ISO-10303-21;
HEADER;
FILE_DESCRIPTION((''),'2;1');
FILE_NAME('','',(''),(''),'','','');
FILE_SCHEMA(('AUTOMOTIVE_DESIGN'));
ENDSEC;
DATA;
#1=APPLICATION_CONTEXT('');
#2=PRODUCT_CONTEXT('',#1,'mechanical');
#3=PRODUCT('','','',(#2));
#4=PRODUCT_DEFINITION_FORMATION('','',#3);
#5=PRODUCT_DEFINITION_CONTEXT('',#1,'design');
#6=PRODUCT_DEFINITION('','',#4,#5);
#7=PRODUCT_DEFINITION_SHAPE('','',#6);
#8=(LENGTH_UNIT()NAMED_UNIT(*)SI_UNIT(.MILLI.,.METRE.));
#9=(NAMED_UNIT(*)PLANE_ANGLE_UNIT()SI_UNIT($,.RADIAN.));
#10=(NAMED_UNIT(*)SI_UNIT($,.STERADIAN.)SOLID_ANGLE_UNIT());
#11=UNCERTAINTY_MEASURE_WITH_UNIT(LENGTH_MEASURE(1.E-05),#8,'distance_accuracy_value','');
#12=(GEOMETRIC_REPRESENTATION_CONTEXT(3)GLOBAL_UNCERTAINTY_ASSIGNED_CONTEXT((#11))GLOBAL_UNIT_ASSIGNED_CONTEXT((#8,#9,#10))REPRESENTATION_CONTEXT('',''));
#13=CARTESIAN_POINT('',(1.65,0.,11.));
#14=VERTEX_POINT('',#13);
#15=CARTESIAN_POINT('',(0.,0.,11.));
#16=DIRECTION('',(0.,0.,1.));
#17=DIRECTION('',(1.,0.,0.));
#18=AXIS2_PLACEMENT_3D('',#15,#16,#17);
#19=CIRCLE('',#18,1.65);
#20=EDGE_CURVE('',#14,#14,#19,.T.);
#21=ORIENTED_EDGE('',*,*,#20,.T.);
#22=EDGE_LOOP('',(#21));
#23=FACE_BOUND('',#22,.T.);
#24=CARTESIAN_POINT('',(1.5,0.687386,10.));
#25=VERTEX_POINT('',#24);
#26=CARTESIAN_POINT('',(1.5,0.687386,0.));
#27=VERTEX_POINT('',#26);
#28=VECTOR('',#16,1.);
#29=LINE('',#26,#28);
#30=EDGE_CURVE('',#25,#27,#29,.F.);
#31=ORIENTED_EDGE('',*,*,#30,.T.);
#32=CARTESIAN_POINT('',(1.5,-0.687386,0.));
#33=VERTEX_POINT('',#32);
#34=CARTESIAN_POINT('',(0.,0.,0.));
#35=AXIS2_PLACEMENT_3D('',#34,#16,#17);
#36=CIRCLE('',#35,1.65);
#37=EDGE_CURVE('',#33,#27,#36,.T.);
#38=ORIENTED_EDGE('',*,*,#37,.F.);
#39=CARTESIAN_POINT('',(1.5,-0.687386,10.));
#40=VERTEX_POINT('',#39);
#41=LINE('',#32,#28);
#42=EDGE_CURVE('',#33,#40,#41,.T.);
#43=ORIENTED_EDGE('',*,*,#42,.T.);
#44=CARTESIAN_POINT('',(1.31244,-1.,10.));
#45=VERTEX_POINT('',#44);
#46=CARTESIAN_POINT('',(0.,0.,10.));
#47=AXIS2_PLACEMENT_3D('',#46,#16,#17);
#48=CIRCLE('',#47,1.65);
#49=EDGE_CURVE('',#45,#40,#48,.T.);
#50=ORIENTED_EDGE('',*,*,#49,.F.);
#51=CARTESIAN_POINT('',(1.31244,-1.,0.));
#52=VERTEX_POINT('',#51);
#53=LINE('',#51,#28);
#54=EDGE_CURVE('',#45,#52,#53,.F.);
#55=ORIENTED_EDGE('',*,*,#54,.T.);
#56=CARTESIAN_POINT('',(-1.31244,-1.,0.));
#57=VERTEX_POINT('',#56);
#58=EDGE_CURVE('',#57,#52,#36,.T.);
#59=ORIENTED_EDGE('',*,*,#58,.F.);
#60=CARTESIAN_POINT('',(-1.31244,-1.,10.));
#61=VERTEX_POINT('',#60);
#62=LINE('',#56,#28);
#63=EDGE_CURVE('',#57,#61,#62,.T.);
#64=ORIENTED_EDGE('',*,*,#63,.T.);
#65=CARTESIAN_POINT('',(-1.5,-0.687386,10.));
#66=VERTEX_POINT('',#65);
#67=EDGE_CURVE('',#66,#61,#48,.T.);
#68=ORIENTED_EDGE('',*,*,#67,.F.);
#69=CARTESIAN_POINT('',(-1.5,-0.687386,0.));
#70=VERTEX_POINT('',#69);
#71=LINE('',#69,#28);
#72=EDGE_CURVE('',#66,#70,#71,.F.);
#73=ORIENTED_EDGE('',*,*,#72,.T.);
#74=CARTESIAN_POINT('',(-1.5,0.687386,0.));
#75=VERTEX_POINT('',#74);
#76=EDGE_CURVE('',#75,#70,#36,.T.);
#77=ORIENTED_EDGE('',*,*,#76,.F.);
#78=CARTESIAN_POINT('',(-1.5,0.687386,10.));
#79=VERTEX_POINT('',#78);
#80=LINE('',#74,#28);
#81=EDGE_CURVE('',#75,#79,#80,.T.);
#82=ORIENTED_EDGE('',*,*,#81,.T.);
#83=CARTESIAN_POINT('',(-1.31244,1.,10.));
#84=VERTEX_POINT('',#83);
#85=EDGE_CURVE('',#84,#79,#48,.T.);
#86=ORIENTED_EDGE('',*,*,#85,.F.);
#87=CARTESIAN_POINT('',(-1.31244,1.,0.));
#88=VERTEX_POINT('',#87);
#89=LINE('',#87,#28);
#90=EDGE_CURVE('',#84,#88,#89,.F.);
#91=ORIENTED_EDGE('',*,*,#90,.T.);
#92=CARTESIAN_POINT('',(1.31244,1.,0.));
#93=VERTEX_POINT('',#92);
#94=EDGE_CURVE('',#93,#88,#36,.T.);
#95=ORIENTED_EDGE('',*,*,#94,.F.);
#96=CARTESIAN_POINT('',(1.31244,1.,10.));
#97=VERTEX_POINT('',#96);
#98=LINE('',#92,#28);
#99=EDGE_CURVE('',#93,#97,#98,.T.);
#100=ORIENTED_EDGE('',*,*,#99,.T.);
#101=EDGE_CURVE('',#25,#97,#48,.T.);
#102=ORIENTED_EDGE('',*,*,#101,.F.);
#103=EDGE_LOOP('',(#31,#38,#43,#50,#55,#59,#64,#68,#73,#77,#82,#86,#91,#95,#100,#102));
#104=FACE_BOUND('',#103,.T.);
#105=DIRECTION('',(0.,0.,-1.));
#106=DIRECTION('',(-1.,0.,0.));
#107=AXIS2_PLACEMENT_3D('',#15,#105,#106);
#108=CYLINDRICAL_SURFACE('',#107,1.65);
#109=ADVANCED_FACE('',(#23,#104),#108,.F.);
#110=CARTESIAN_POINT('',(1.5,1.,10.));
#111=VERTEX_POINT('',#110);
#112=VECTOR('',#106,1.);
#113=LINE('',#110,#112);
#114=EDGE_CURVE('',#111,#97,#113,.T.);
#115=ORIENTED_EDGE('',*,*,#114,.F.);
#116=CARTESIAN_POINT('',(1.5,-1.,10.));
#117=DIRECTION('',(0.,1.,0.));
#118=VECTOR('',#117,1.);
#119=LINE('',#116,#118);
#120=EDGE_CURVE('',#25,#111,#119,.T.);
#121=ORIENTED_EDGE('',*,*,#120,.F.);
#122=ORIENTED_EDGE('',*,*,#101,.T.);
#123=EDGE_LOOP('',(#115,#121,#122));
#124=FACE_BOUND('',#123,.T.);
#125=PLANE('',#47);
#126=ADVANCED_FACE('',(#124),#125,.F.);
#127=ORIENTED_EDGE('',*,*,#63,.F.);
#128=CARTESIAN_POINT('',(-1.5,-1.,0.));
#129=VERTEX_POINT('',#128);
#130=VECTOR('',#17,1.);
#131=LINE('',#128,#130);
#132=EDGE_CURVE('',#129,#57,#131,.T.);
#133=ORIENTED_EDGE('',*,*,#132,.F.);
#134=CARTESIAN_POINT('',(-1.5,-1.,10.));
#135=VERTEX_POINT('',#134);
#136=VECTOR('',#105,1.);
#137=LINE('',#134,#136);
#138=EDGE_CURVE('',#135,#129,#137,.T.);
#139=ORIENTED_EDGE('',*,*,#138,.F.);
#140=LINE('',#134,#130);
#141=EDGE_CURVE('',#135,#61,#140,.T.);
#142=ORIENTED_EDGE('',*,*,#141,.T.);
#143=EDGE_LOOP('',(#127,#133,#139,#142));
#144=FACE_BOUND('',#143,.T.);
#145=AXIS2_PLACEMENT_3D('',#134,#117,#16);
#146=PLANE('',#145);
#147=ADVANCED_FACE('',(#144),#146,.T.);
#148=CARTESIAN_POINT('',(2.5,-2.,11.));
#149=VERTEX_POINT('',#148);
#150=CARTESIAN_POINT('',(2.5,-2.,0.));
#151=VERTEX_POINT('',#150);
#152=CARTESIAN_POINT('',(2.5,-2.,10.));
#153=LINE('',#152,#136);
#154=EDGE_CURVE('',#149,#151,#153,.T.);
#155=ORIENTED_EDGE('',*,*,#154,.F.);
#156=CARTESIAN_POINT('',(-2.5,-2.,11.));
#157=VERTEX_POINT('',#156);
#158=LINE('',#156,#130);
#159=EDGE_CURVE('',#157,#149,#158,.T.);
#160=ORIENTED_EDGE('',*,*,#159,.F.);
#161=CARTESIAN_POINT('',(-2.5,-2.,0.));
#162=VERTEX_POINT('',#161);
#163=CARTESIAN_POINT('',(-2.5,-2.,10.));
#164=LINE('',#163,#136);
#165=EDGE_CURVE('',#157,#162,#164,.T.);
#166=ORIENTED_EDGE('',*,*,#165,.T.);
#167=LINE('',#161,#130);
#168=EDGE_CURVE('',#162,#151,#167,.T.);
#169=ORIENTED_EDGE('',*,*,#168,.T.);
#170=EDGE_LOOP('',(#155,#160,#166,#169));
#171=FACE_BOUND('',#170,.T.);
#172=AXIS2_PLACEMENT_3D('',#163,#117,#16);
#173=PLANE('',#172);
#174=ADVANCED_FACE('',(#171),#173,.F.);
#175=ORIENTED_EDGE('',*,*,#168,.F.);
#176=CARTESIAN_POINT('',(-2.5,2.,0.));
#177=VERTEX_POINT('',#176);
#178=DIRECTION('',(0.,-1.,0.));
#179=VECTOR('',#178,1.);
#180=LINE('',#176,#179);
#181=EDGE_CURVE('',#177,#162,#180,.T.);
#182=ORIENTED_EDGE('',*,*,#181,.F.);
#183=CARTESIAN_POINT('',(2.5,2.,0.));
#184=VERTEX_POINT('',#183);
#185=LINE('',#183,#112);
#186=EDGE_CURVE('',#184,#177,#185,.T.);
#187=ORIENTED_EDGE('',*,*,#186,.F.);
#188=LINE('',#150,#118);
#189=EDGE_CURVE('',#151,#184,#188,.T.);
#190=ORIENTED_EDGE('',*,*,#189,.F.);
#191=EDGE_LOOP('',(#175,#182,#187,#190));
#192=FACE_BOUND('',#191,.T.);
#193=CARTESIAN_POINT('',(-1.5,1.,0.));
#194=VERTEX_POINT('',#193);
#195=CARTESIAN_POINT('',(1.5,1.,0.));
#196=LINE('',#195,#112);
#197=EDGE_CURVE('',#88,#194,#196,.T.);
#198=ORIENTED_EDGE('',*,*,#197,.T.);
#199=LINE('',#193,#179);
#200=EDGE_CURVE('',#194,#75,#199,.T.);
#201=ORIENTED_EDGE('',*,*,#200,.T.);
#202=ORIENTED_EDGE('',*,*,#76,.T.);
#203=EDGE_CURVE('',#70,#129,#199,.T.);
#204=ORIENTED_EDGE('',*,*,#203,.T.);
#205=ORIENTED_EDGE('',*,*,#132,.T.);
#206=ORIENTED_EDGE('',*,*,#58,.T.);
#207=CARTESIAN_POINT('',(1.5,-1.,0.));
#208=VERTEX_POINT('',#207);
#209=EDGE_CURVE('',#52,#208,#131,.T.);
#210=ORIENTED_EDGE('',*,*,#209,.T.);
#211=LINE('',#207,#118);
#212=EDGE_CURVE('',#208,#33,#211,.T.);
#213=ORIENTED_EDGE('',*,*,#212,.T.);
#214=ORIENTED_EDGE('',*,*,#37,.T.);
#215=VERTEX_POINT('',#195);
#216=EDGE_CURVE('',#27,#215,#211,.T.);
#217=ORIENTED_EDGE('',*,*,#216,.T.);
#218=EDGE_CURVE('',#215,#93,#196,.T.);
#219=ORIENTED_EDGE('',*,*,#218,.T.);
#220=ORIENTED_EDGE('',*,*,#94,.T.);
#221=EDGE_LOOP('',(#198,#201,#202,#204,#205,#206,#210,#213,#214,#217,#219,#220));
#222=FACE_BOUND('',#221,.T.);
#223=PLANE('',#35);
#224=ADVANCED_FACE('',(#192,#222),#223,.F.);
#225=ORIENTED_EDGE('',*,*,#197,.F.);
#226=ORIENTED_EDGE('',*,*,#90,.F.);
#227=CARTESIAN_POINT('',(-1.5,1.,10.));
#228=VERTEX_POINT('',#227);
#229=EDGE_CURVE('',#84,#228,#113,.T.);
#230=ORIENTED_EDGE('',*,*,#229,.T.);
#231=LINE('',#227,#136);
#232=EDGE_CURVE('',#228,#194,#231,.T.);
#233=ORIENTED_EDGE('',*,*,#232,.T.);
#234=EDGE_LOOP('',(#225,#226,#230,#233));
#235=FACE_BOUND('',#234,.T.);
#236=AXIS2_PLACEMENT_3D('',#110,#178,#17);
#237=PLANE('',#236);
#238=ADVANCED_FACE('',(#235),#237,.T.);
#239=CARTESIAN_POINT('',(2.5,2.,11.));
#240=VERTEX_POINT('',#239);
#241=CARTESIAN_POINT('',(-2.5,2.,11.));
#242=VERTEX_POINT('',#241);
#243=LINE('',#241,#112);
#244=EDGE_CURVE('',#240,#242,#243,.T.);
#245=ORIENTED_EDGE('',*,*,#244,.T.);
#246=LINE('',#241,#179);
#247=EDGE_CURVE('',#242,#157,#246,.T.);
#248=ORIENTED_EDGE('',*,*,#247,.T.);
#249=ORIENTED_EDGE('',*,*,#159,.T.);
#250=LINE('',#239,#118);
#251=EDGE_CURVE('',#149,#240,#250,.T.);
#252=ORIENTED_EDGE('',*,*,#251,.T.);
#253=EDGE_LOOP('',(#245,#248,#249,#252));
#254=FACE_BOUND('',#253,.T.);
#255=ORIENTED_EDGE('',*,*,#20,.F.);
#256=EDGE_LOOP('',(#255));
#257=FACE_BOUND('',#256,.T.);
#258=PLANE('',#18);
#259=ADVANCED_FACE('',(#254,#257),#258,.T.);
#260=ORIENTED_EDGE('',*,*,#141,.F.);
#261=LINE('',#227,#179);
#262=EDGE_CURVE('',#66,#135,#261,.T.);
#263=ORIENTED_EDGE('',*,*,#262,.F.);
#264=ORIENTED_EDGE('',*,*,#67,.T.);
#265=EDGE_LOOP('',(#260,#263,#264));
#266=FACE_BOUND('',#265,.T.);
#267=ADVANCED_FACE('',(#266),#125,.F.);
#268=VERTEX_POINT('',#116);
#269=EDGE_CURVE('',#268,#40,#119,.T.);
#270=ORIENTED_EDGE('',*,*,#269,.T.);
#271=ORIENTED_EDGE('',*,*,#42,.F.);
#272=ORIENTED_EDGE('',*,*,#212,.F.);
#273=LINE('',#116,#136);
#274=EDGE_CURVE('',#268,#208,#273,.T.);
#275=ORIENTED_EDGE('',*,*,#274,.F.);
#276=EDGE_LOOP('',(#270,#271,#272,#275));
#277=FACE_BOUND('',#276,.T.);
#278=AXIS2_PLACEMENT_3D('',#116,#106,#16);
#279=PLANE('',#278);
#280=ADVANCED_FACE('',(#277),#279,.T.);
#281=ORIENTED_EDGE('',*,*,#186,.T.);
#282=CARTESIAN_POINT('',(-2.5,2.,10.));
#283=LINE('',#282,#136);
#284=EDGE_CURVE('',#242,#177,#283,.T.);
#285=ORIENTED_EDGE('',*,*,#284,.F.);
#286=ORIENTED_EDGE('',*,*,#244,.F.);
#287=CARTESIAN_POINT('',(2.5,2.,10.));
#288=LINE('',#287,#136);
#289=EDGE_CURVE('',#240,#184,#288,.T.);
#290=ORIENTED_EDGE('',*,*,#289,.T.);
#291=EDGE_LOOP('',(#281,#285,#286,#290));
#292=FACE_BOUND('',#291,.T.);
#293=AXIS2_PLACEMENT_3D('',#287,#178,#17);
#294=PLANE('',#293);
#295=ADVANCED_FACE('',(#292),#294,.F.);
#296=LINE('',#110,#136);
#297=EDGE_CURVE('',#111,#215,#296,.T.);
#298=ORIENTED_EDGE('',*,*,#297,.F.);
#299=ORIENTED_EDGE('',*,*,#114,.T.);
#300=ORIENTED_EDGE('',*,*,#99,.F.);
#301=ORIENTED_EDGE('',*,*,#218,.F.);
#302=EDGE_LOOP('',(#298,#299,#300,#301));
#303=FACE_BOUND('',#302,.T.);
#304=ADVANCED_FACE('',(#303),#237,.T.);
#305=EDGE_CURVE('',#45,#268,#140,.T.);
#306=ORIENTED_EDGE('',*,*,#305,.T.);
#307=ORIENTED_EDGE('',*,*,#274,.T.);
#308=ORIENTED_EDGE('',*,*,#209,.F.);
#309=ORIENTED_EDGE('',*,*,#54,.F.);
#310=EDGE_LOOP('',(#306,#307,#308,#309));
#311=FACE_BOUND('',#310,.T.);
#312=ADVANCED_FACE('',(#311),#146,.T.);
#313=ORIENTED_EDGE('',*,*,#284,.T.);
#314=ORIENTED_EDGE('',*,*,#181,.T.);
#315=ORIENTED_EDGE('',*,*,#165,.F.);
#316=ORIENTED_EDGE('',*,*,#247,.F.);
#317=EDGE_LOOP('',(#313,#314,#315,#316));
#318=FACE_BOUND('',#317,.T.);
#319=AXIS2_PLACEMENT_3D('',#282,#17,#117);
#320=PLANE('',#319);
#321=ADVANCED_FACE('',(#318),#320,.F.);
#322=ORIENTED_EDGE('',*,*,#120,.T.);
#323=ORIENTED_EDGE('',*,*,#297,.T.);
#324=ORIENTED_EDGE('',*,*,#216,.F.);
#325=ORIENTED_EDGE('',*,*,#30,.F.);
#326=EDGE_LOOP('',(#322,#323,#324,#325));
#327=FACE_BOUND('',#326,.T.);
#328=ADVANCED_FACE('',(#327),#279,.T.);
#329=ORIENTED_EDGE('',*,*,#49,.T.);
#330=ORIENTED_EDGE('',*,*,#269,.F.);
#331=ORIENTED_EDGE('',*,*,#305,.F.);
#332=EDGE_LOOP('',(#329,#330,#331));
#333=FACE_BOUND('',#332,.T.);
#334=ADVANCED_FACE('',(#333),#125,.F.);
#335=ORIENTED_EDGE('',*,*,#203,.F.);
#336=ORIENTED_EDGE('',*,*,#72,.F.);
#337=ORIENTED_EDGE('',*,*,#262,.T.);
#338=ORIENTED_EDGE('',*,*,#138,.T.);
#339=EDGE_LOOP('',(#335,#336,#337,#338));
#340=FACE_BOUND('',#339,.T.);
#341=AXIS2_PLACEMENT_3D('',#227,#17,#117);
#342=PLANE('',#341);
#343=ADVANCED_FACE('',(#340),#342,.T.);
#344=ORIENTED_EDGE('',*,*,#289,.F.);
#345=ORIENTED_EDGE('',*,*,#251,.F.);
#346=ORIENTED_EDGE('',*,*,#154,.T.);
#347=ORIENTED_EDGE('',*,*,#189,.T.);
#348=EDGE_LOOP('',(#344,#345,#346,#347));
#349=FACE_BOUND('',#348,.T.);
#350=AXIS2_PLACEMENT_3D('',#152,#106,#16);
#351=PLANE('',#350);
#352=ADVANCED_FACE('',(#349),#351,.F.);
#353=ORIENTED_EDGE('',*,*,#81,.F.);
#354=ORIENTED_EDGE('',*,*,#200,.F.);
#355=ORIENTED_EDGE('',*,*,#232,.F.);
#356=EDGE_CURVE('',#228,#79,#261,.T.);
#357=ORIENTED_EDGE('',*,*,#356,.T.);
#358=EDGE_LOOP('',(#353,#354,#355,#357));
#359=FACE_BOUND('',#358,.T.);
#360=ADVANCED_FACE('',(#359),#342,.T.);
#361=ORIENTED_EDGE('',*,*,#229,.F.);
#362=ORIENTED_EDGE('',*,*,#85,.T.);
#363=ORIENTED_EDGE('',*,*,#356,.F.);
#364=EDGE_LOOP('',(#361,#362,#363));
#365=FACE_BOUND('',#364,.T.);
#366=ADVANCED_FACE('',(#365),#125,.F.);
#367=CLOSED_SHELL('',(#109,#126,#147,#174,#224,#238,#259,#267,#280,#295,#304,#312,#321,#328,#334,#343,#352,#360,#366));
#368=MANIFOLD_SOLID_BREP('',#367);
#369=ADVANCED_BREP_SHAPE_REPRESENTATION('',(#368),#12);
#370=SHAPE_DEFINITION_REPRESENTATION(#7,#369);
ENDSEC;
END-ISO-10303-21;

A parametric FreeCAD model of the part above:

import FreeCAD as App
import Part
import Sketcher
Q = App.Units.Quantity

doc = App.newDocument("Part")
params = doc.addObject("Spreadsheet::Sheet", "Params")
for row, (alias, value) in enumerate([
    ("sketch1_width", "5 mm"),
    ("sketch1_width2", "3 mm"),
    ("sketch1_height", "4 mm"),
    ("sketch1_height2", "2 mm"),
    ("pad1_length", "10 mm"),
    ("sketch2_diameter", "3.3 mm"),
    ("sketch2_width", "5 mm"),
    ("sketch2_height", "4 mm"),
    ("pad2_length", "1 mm"),
    ("sketch3_diameter", "3.3 mm"),
], start=1):
    params.set(f"A{row}", alias)
    params.set(f"B{row}", "=" + value)
    params.setAlias(f"B{row}", alias)

body = doc.addObject("PartDesign::Body", "Body")

# Sketch on XY plane
sketch1 = body.newObject("Sketcher::SketchObject", "Sketch")
sketch1.AttachmentSupport = (doc.getObject("XY_Plane"), [""])
sketch1.MapMode = "FlatFace"
sketch1.addGeometry(Part.LineSegment(App.Vector(-2.5, 2, 0), App.Vector(-2.5, -2, 0)), False)
sketch1.addGeometry(Part.LineSegment(App.Vector(-2.5, -2, 0), App.Vector(2.5, -2, 0)), False)
sketch1.addGeometry(Part.LineSegment(App.Vector(2.5, -2, 0), App.Vector(2.5, 2, 0)), False)
sketch1.addGeometry(Part.LineSegment(App.Vector(2.5, 2, 0), App.Vector(-2.5, 2, 0)), False)
sketch1.addGeometry(Part.LineSegment(App.Vector(1.5, -1, 0), App.Vector(-1.5, -1, 0)), False)
sketch1.addGeometry(Part.LineSegment(App.Vector(-1.5, -1, 0), App.Vector(-1.5, 1, 0)), False)
sketch1.addGeometry(Part.LineSegment(App.Vector(-1.5, 1, 0), App.Vector(1.5, 1, 0)), False)
sketch1.addGeometry(Part.LineSegment(App.Vector(1.5, 1, 0), App.Vector(1.5, -1, 0)), False)
sketch1.addConstraint(Sketcher.Constraint("Coincident", 0, 2, 1, 1))
sketch1.addConstraint(Sketcher.Constraint("Coincident", 1, 2, 2, 1))
sketch1.addConstraint(Sketcher.Constraint("Coincident", 2, 2, 3, 1))
sketch1.addConstraint(Sketcher.Constraint("Coincident", 3, 2, 0, 1))
sketch1.addConstraint(Sketcher.Constraint("Coincident", 4, 2, 5, 1))
sketch1.addConstraint(Sketcher.Constraint("Coincident", 5, 2, 6, 1))
sketch1.addConstraint(Sketcher.Constraint("Coincident", 6, 2, 7, 1))
sketch1.addConstraint(Sketcher.Constraint("Coincident", 7, 2, 4, 1))
sketch1.addConstraint(Sketcher.Constraint("Vertical", 0))
sketch1.addConstraint(Sketcher.Constraint("Horizontal", 1))
sketch1.addConstraint(Sketcher.Constraint("Vertical", 2))
sketch1.addConstraint(Sketcher.Constraint("Horizontal", 3))
sketch1.addConstraint(Sketcher.Constraint("Horizontal", 4))
sketch1.addConstraint(Sketcher.Constraint("Vertical", 5))
sketch1.addConstraint(Sketcher.Constraint("Horizontal", 6))
sketch1.addConstraint(Sketcher.Constraint("Vertical", 7))
sketch1.addConstraint(Sketcher.Constraint("Symmetric", 0, 2, 2, 2, -1, 1))
sketch1.addConstraint(Sketcher.Constraint("Symmetric", 4, 2, 6, 2, -1, 1))
sketch1.addConstraint(Sketcher.Constraint("DistanceX", 1, 1, 1, 2, Q("5 mm")))
sketch1.addConstraint(Sketcher.Constraint("DistanceX", 4, 2, 4, 1, Q("3 mm")))
sketch1.addConstraint(Sketcher.Constraint("DistanceY", 0, 2, 0, 1, Q("4 mm")))
sketch1.addConstraint(Sketcher.Constraint("DistanceY", 5, 1, 5, 2, Q("2 mm")))
sketch1.setExpression("Constraints[18]", "Params.sketch1_width")
sketch1.setExpression("Constraints[19]", "Params.sketch1_width2")
sketch1.setExpression("Constraints[20]", "Params.sketch1_height")
sketch1.setExpression("Constraints[21]", "Params.sketch1_height2")
pad1 = body.newObject("PartDesign::Pad", "Pad")
pad1.Profile = sketch1
pad1.setExpression("Length", "Params.pad1_length")

# Sketch on XY plane
sketch2 = body.newObject("Sketcher::SketchObject", "Sketch001")
sketch2.AttachmentSupport = (doc.getObject("XY_Plane"), [""])
sketch2.MapMode = "FlatFace"
sketch2.AttachmentOffset = App.Placement(App.Vector(0, 0, 10), App.Rotation())
sketch2.addGeometry(Part.LineSegment(App.Vector(-2.5, 2, 0), App.Vector(-2.5, -2, 0)), False)
sketch2.addGeometry(Part.LineSegment(App.Vector(-2.5, -2, 0), App.Vector(2.5, -2, 0)), False)
sketch2.addGeometry(Part.LineSegment(App.Vector(2.5, -2, 0), App.Vector(2.5, 2, 0)), False)
sketch2.addGeometry(Part.LineSegment(App.Vector(2.5, 2, 0), App.Vector(-2.5, 2, 0)), False)
sketch2.addGeometry(Part.Circle(App.Vector(0, 0, 0), App.Vector(0, 0, 1), 1.65), False)
sketch2.addConstraint(Sketcher.Constraint("Coincident", 0, 2, 1, 1))
sketch2.addConstraint(Sketcher.Constraint("Coincident", 1, 2, 2, 1))
sketch2.addConstraint(Sketcher.Constraint("Coincident", 2, 2, 3, 1))
sketch2.addConstraint(Sketcher.Constraint("Coincident", 3, 2, 0, 1))
sketch2.addConstraint(Sketcher.Constraint("Vertical", 0))
sketch2.addConstraint(Sketcher.Constraint("Horizontal", 1))
sketch2.addConstraint(Sketcher.Constraint("Vertical", 2))
sketch2.addConstraint(Sketcher.Constraint("Horizontal", 3))
sketch2.addConstraint(Sketcher.Constraint("Coincident", 4, 3, -1, 1))
sketch2.addConstraint(Sketcher.Constraint("Symmetric", 0, 2, 2, 2, -1, 1))
sketch2.addConstraint(Sketcher.Constraint("Diameter", 4, Q("3.3 mm")))
sketch2.addConstraint(Sketcher.Constraint("DistanceX", 1, 1, 1, 2, Q("5 mm")))
sketch2.addConstraint(Sketcher.Constraint("DistanceY", 0, 2, 0, 1, Q("4 mm")))
sketch2.setExpression("Constraints[10]", "Params.sketch2_diameter")
sketch2.setExpression("Constraints[11]", "Params.sketch2_width")
sketch2.setExpression("Constraints[12]", "Params.sketch2_height")
pad2 = body.newObject("PartDesign::Pad", "Pad001")
pad2.Profile = sketch2
pad2.setExpression("Length", "Params.pad2_length")

# Sketch on XY plane
sketch3 = body.newObject("Sketcher::SketchObject", "Sketch002")
sketch3.AttachmentSupport = (doc.getObject("XY_Plane"), [""])
sketch3.MapMode = "FlatFace"
sketch3.AttachmentOffset = App.Placement(App.Vector(0, 0, 11), App.Rotation())
sketch3.addGeometry(Part.Circle(App.Vector(0, 0, 0), App.Vector(0, 0, 1), 1.65), False)
sketch3.addConstraint(Sketcher.Constraint("Coincident", 0, 3, -1, 1))
sketch3.addConstraint(Sketcher.Constraint("Diameter", 0, Q("3.3 mm")))
sketch3.setExpression("Constraints[1]", "Params.sketch3_diameter")
pocket1 = body.newObject("PartDesign::Pocket", "Pocket")
pocket1.Profile = sketch3
pocket1.Type = "ThroughAll"

doc.recompute()
